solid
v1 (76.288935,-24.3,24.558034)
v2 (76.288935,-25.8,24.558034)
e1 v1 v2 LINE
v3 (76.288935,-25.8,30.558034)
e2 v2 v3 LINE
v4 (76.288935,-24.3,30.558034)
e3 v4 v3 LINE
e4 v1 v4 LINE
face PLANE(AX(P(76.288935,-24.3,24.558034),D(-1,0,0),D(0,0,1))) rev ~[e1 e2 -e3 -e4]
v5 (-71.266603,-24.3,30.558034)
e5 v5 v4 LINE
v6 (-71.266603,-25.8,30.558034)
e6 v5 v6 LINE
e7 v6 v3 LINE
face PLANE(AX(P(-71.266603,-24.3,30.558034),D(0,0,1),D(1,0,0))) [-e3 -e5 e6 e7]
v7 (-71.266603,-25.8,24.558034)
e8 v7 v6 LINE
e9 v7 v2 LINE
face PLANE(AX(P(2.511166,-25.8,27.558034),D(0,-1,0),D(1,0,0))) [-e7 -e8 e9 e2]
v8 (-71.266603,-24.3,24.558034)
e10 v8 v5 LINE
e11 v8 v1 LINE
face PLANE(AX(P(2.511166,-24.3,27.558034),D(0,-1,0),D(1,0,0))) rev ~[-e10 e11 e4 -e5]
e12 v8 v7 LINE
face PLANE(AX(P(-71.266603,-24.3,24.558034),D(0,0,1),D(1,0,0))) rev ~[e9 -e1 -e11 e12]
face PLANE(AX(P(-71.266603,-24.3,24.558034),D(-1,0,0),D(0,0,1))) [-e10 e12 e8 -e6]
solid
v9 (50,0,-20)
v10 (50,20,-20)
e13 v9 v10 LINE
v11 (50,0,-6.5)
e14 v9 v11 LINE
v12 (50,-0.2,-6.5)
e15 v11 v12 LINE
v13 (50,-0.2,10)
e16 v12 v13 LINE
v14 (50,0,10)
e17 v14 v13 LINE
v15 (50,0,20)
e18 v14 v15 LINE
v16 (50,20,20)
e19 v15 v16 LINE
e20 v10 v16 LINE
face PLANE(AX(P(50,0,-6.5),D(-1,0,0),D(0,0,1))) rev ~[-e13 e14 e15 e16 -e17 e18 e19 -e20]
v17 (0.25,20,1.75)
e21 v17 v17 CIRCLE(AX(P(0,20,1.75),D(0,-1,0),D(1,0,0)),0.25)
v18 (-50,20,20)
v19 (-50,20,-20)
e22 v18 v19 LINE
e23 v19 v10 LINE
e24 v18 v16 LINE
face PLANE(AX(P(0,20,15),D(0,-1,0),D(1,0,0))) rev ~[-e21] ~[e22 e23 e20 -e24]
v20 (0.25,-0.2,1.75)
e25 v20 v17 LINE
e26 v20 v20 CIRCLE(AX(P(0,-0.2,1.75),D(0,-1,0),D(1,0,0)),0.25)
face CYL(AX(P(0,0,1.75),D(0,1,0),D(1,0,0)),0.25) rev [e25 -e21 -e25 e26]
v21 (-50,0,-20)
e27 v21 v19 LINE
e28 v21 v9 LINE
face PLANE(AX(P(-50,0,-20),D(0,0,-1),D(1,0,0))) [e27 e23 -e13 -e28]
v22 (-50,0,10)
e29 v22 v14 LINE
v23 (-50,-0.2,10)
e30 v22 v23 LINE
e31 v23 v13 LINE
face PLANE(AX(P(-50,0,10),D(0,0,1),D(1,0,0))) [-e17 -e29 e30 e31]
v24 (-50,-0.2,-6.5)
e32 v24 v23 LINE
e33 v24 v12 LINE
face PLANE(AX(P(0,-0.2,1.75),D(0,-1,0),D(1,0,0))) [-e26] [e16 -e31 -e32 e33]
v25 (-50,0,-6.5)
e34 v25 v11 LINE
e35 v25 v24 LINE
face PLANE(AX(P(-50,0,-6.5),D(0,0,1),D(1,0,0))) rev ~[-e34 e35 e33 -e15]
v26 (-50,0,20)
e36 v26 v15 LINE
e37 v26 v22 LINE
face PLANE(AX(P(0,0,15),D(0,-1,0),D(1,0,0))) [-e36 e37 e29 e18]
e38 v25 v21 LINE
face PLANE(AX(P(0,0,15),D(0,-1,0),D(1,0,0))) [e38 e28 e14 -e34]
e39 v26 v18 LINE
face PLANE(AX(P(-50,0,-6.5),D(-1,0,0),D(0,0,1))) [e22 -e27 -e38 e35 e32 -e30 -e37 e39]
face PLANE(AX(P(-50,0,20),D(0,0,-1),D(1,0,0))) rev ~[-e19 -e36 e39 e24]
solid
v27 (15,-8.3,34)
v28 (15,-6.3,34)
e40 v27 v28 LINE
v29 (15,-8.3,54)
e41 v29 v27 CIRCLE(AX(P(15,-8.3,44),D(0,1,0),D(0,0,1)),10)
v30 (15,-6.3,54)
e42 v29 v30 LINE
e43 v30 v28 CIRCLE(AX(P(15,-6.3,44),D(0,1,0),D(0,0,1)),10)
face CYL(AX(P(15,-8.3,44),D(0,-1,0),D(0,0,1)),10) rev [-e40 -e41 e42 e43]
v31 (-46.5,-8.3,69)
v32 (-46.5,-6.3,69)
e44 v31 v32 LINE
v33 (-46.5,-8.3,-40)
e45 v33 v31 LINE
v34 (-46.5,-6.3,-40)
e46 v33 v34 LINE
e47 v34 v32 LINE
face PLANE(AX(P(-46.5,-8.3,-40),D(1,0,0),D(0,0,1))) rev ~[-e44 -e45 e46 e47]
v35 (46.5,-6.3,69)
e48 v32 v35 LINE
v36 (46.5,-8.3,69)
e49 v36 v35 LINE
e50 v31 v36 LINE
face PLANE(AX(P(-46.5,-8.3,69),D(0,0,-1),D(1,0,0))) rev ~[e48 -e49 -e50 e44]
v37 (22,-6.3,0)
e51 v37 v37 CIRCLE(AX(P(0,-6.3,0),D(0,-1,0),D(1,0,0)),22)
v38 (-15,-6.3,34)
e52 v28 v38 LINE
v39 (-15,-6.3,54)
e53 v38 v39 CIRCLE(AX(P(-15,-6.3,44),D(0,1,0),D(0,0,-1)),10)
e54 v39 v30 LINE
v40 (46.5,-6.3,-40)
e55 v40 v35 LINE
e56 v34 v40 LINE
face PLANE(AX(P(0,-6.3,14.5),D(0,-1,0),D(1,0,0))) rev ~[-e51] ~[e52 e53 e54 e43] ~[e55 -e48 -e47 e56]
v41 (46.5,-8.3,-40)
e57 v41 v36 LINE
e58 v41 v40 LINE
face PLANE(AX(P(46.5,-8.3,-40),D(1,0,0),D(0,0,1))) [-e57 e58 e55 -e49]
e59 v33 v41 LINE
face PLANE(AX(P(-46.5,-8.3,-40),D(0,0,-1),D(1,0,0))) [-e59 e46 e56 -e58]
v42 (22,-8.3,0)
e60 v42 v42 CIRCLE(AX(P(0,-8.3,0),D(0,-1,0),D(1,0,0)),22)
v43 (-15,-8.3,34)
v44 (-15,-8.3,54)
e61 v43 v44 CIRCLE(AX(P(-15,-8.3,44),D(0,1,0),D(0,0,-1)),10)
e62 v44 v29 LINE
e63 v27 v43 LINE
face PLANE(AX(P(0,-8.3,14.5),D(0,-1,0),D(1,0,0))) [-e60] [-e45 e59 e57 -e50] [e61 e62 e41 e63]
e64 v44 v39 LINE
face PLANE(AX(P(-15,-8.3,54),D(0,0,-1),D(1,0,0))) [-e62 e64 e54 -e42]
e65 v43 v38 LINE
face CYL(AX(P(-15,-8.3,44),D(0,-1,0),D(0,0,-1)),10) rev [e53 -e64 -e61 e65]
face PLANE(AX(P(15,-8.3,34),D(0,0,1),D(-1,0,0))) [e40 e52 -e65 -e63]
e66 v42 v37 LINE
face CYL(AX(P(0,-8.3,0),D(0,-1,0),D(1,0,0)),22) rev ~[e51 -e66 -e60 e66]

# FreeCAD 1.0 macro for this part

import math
import FreeCAD as App
import Part
import Sketcher
from FreeCAD import Vector


def add_polygon(sketch, points):
    """Adds a closed chain of lines whose ends are joined by coincident constraints."""
    first, n = sketch.GeometryCount, len(points)
    for a, b in zip(points, points[1:] + points[:1]):
        sketch.addGeometry(Part.LineSegment(App.Vector(*a, 0), App.Vector(*b, 0)), False)
    for i in range(n):
        sketch.addConstraint(Sketcher.Constraint("Coincident", first + i, 2, first + (i + 1) % n, 1))

doc = App.newDocument("Part")
body = doc.addObject("PartDesign::Body", "Body")

# Sketch on XZ plane
sketch1 = doc.addObject("Sketcher::SketchObject", "Sketch")
body.addObject(sketch1)
sketch1.AttachmentSupport = (doc.XZ_Plane, [""])
sketch1.MapMode = "FlatFace"
add_polygon(sketch1, [(-50, 20), (-50, -20), (50, -20), (50, 20)])  # lines 0-3
sketch1.addGeometry(Part.Circle(Vector(0, 1.75, 0), Vector(0, 0, 1), 0.25), False)  # 4
sketch1.addConstraint([
    Sketcher.Constraint("Vertical", 0),
    Sketcher.Constraint("Horizontal", 1),
    Sketcher.Constraint("Vertical", 2),
    Sketcher.Constraint("Horizontal", 3),
    Sketcher.Constraint("Symmetric", 0, 2, 2, 2, -1, 1),
    Sketcher.Constraint("PointOnObject", 4, 3, -2),
    Sketcher.Constraint("Diameter", 4, 0.5),
    Sketcher.Constraint("DistanceX", 1, 1, 1, 2, 100.0),
    Sketcher.Constraint("DistanceY", 0, 2, 0, 1, 40.0),
    Sketcher.Constraint("DistanceY", -1, 1, 4, 3, 1.75),
])
pad1 = doc.addObject("PartDesign::Pad", "Pad")
body.addObject(pad1)
pad1.Profile = sketch1
pad1.Length = 20
pad1.Reversed = True

# Sketch on XZ plane
sketch2 = doc.addObject("Sketcher::SketchObject", "Sketch001")
body.addObject(sketch2)
sketch2.AttachmentSupport = (doc.XZ_Plane, [""])
sketch2.MapMode = "FlatFace"
add_polygon(sketch2, [(-50, 10), (-50, -6.5), (50, -6.5), (50, 10)])  # lines 0-3
sketch2.addGeometry(Part.Circle(Vector(0, 1.75, 0), Vector(0, 0, 1), 0.25), False)  # 4
sketch2.addConstraint([
    Sketcher.Constraint("Vertical", 0),
    Sketcher.Constraint("Horizontal", 1),
    Sketcher.Constraint("Vertical", 2),
    Sketcher.Constraint("Horizontal", 3),
    Sketcher.Constraint("PointOnObject", 4, 3, -2),
    Sketcher.Constraint("Diameter", 4, 0.5),
    Sketcher.Constraint("DistanceX", 1, 1, 1, 2, 100.0),
    Sketcher.Constraint("DistanceY", 0, 2, 0, 1, 16.5),
    Sketcher.Constraint("DistanceX", 0, 2, -1, 1, 50.0),
    Sketcher.Constraint("DistanceY", -1, 1, 2, 2, 10.0),
    Sketcher.Constraint("DistanceY", -1, 1, 4, 3, 1.75),
])
pad2 = doc.addObject("PartDesign::Pad", "Pad001")
body.addObject(pad2)
pad2.Profile = sketch2
pad2.Length = 0.2
body2 = doc.addObject("PartDesign::Body", "Body001")

# Sketch on XZ plane
sketch3 = doc.addObject("Sketcher::SketchObject", "Sketch002")
body2.addObject(sketch3)
sketch3.AttachmentSupport = (doc.getObject("XZ_Plane001"), [""])
sketch3.MapMode = "FlatFace"
sketch3.AttachmentOffset = App.Placement(Vector(0, 0, 8.3), App.Rotation())
add_polygon(sketch3, [(-46.5, 69), (-46.5, -40), (46.5, -40), (46.5, 69)])  # lines 0-3
sketch3.addGeometry(Part.Circle(Vector(0, 0, 0), Vector(0, 0, 1), 22), False)  # 4
sketch3.addGeometry(Part.LineSegment(Vector(15, 34, 0), Vector(-15, 34, 0)), False)  # 5
sketch3.addGeometry(Part.ArcOfCircle(Part.Circle(Vector(-15, 44, 0), Vector(0, 0, 1), 10), math.radians(90), math.radians(270)), False)  # 6
sketch3.addGeometry(Part.LineSegment(Vector(-15, 54, 0), Vector(15, 54, 0)), False)  # 7
sketch3.addGeometry(Part.ArcOfCircle(Part.Circle(Vector(15, 44, 0), Vector(0, 0, 1), 10), math.radians(-90), math.radians(90)), False)  # 8
sketch3.addConstraint([
    Sketcher.Constraint("Tangent", 5, 2, 6, 2),
    Sketcher.Constraint("Tangent", 6, 1, 7, 1),
    Sketcher.Constraint("Tangent", 7, 2, 8, 2),
    Sketcher.Constraint("Tangent", 8, 1, 5, 1),
    Sketcher.Constraint("Vertical", 0),
    Sketcher.Constraint("Horizontal", 1),
    Sketcher.Constraint("Vertical", 2),
    Sketcher.Constraint("Horizontal", 3),
    Sketcher.Constraint("Horizontal", 5),
    Sketcher.Constraint("Horizontal", 7),
    Sketcher.Constraint("Coincident", 4, 3, -1, 1),
    Sketcher.Constraint("Diameter", 4, 44.0),
    Sketcher.Constraint("Radius", 6, 10.0),
    Sketcher.Constraint("DistanceX", 1, 1, 1, 2, 93.0),
    Sketcher.Constraint("DistanceX", 5, 2, 5, 1, 30.0),
    Sketcher.Constraint("DistanceY", 0, 2, 0, 1, 109.0),
    Sketcher.Constraint("DistanceX", 6, 3, -1, 1, 15.0),
    Sketcher.Constraint("DistanceY", -1, 1, 6, 3, 44.0),
    Sketcher.Constraint("DistanceY", 0, 2, -1, 1, 40.0),
    Sketcher.Constraint("DistanceX", 0, 2, -1, 1, 46.5),
])
pad3 = doc.addObject("PartDesign::Pad", "Pad002")
body2.addObject(pad3)
pad3.Profile = sketch3
pad3.Length = 2
pad3.Reversed = True
body3 = doc.addObject("PartDesign::Body", "Body002")

# Sketch on XZ plane
sketch4 = doc.addObject("Sketcher::SketchObject", "Sketch003")
body3.addObject(sketch4)
sketch4.AttachmentSupport = (doc.getObject("XZ_Plane002"), [""])
sketch4.MapMode = "FlatFace"
sketch4.AttachmentOffset = App.Placement(Vector(0, 0, 24.3), App.Rotation())
add_polygon(sketch4, [(-71.266603, 30.558034), (-71.266603, 24.558034), (76.288935, 24.558034), (76.288935, 30.558034)])  # lines 0-3
sketch4.addConstraint([
    Sketcher.Constraint("Vertical", 0),
    Sketcher.Constraint("Horizontal", 1),
    Sketcher.Constraint("Vertical", 2),
    Sketcher.Constraint("Horizontal", 3),
    Sketcher.Constraint("DistanceY", 0, 2, 0, 1, 6.0),
    Sketcher.Constraint("DistanceX", 1, 1, 1, 2, 147.555537),
    Sketcher.Constraint("DistanceX", 0, 2, -1, 1, 71.266603),
    Sketcher.Constraint("DistanceY", -1, 1, 0, 2, 24.558034),
])
pad4 = doc.addObject("PartDesign::Pad", "Pad003")
body3.addObject(pad4)
pad4.Profile = sketch4
pad4.Length = 1.5

doc.recompute()
